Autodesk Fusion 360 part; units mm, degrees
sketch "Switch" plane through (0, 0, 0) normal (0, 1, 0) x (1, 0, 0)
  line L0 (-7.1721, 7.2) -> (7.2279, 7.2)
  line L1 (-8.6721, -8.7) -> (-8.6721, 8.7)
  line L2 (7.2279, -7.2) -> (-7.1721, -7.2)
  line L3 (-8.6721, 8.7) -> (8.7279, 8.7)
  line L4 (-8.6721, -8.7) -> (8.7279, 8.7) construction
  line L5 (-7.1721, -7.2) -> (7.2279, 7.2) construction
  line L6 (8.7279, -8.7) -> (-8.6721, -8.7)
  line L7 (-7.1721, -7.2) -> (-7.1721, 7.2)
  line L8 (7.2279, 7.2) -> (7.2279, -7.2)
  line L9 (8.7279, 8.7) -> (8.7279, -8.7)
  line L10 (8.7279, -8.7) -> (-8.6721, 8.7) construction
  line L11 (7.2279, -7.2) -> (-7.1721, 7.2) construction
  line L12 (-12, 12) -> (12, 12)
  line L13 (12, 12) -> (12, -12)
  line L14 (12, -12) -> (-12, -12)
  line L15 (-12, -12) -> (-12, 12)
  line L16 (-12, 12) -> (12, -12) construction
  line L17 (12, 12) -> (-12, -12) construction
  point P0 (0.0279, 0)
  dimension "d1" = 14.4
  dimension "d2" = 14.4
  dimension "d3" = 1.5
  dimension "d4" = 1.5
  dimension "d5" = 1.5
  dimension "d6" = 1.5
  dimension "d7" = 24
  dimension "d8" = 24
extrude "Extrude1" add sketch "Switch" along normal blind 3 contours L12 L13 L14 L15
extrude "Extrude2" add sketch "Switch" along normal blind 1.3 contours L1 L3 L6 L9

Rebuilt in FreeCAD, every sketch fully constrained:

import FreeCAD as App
import Part
import Sketcher
from FreeCAD import Vector


def add_polygon(sketch, points):
    """Adds a closed chain of lines whose ends are joined by coincident constraints."""
    first, n = sketch.GeometryCount, len(points)
    for a, b in zip(points, points[1:] + points[:1]):
        sketch.addGeometry(Part.LineSegment(App.Vector(*a, 0), App.Vector(*b, 0)), False)
    for i in range(n):
        sketch.addConstraint(Sketcher.Constraint("Coincident", first + i, 2, first + (i + 1) % n, 1))

doc = App.newDocument("Part")
body = doc.addObject("PartDesign::Body", "Body")

sketch1 = body.newObject("Sketcher::SketchObject", "Sketch")
sketch1.AttachmentSupport = (doc.getObject("XZ_Plane"), [""])
sketch1.MapMode = "FlatFace"
add_polygon(sketch1, [(12, -12), (-12, -12), (-12, 12), (12, 12)])
add_polygon(sketch1, [(8.7279, 8.7), (-8.6721, 8.7), (-8.6721, -8.7), (8.7279, -8.7)])
sketch1.addConstraint(Sketcher.Constraint("Horizontal", 0))
sketch1.addConstraint(Sketcher.Constraint("Vertical", 1))
sketch1.addConstraint(Sketcher.Constraint("Horizontal", 2))
sketch1.addConstraint(Sketcher.Constraint("Vertical", 3))
sketch1.addConstraint(Sketcher.Constraint("Horizontal", 4))
sketch1.addConstraint(Sketcher.Constraint("Vertical", 5))
sketch1.addConstraint(Sketcher.Constraint("Horizontal", 6))
sketch1.addConstraint(Sketcher.Constraint("Vertical", 7))
sketch1.addConstraint(Sketcher.Constraint("Symmetric", 0, 2, 2, 2, -1, 1))
sketch1.addConstraint(Sketcher.Constraint("Equal", 2, 1))
sketch1.addConstraint(Sketcher.Constraint("Equal", 6, 5))
sketch1.addConstraint(Sketcher.Constraint("DistanceX", 0, 2, 0, 1, 24.0))
sketch1.addConstraint(Sketcher.Constraint("DistanceX", 4, 2, 4, 1, 17.4))
sketch1.addConstraint(Sketcher.Constraint("DistanceY", -1, 1, 4, 2, 8.7))
sketch1.addConstraint(Sketcher.Constraint("DistanceX", 4, 2, -1, 1, 8.672))
pad1 = body.newObject("PartDesign::Pad", "Pad")
pad1.Profile = sketch1
pad1.Length = 3
pad1.Reversed = True

sketch2 = body.newObject("Sketcher::SketchObject", "Sketch001")
sketch2.AttachmentSupport = (doc.getObject("XZ_Plane"), [""])
sketch2.MapMode = "FlatFace"
add_polygon(sketch2, [(-8.6721, -8.7), (-8.6721, 8.7), (8.7279, 8.7), (8.7279, -8.7)])
add_polygon(sketch2, [(-7.1721, 7.2), (-7.1721, -7.2), (7.2279, -7.2), (7.2279, 7.2)])
sketch2.addConstraint(Sketcher.Constraint("Vertical", 0))
sketch2.addConstraint(Sketcher.Constraint("Horizontal", 1))
sketch2.addConstraint(Sketcher.Constraint("Vertical", 2))
sketch2.addConstraint(Sketcher.Constraint("Horizontal", 3))
sketch2.addConstraint(Sketcher.Constraint("Vertical", 4))
sketch2.addConstraint(Sketcher.Constraint("Horizontal", 5))
sketch2.addConstraint(Sketcher.Constraint("Vertical", 6))
sketch2.addConstraint(Sketcher.Constraint("Horizontal", 7))
sketch2.addConstraint(Sketcher.Constraint("Equal", 3, 0))
sketch2.addConstraint(Sketcher.Constraint("Equal", 7, 4))
sketch2.addConstraint(Sketcher.Constraint("DistanceX", 5, 1, 5, 2, 14.4))
sketch2.addConstraint(Sketcher.Constraint("DistanceX", 3, 2, 4, 2, 1.5))
sketch2.addConstraint(Sketcher.Constraint("DistanceY", 3, 2, 4, 2, 1.5))
sketch2.addConstraint(Sketcher.Constraint("DistanceX", 5, 2, 2, 2, 1.5))
sketch2.addConstraint(Sketcher.Constraint("DistanceY", -1, 1, 0, 2, 8.7))
sketch2.addConstraint(Sketcher.Constraint("DistanceX", 0, 2, -1, 1, 8.672))
pad2 = body.newObject("PartDesign::Pad", "Pad001")
pad2.Profile = sketch2
pad2.Length = 1.3
pad2.Reversed = True

doc.recompute()
